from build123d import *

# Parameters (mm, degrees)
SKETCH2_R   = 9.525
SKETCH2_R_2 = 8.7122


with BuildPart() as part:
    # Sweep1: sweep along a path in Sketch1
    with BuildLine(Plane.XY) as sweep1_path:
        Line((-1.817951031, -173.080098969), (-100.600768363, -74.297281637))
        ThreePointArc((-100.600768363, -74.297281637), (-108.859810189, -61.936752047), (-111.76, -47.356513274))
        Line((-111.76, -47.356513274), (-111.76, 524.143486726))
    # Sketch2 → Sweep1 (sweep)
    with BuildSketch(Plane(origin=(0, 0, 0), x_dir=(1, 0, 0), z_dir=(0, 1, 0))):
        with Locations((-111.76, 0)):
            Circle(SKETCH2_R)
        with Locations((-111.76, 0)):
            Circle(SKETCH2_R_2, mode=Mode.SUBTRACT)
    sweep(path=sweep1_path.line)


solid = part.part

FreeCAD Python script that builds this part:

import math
import FreeCAD as App
import Part
import Sketcher
from FreeCAD import Vector
Q = App.Units.Quantity

doc = App.newDocument("Part")
body = doc.addObject("PartDesign::Body", "Body")

# Sketch on XZ plane
sketch1 = body.newObject("Sketcher::SketchObject", "Sketch")
sketch1.AttachmentSupport = (doc.getObject("XZ_Plane"), [""])
sketch1.MapMode = "FlatFace"
sketch1.addGeometry([
    Part.Circle(Vector(-111.76, 0, 0), Vector(0, 0, 1), 9.525),
    Part.Circle(Vector(-111.76, 0, 0), Vector(0, 0, 1), 8.7122),
], False)
sketch1.addConstraint([
    Sketcher.Constraint("Coincident", 1, 3, 0, 3),
    Sketcher.Constraint("PointOnObject", 0, 3, -1),
    Sketcher.Constraint("Diameter", 0, Q("0.75 in")),
    Sketcher.Constraint("Diameter", 1, Q("0.686 in")),
    Sketcher.Constraint("DistanceX", 0, 3, -1, 1, Q("4.4 in")),
])

# Sketch on XY plane
sketch2 = body.newObject("Sketcher::SketchObject", "Sketch001")
sketch2.AttachmentSupport = (doc.getObject("XY_Plane"), [""])
sketch2.MapMode = "FlatFace"
sketch2.addGeometry([
    Part.LineSegment(Vector(-1.817951, -173.080099, 0), Vector(-100.600768, -74.297282, 0)),
    Part.ArcOfCircle(Part.Circle(Vector(-73.66, -47.356513, 0), Vector(0, 0, 1), 38.1), math.radians(180), math.radians(225)),
    Part.LineSegment(Vector(-111.76, -47.356513, 0), Vector(-111.76, 524.143487, 0)),
], False)
sketch2.addConstraint([
    Sketcher.Constraint("Tangent", 0, 2, 1, 2),
    Sketcher.Constraint("Tangent", 1, 1, 2, 1),
    Sketcher.Constraint("Vertical", 2),
    Sketcher.Constraint("Radius", 1, Q("1.5 in")),
    Sketcher.Constraint("DistanceY", 2, 1, 2, 2, Q("22.5 in")),
    Sketcher.Constraint("Angle", 0, Q("135 deg")),
    Sketcher.Constraint("Distance", 0, Q("5.5 in")),
    Sketcher.Constraint("DistanceX", 1, 3, -1, 1, Q("2.9 in")),
    Sketcher.Constraint("DistanceY", 0, 1, -1, 1, 173.080099),
])
doc.recompute()

additivepipe = body.newObject("PartDesign::AdditivePipe", "AdditivePipe")
additivepipe.Profile = sketch1
additivepipe.Spine = (sketch2, ["Edge1", "Edge2", "Edge3"])

doc.recompute()
